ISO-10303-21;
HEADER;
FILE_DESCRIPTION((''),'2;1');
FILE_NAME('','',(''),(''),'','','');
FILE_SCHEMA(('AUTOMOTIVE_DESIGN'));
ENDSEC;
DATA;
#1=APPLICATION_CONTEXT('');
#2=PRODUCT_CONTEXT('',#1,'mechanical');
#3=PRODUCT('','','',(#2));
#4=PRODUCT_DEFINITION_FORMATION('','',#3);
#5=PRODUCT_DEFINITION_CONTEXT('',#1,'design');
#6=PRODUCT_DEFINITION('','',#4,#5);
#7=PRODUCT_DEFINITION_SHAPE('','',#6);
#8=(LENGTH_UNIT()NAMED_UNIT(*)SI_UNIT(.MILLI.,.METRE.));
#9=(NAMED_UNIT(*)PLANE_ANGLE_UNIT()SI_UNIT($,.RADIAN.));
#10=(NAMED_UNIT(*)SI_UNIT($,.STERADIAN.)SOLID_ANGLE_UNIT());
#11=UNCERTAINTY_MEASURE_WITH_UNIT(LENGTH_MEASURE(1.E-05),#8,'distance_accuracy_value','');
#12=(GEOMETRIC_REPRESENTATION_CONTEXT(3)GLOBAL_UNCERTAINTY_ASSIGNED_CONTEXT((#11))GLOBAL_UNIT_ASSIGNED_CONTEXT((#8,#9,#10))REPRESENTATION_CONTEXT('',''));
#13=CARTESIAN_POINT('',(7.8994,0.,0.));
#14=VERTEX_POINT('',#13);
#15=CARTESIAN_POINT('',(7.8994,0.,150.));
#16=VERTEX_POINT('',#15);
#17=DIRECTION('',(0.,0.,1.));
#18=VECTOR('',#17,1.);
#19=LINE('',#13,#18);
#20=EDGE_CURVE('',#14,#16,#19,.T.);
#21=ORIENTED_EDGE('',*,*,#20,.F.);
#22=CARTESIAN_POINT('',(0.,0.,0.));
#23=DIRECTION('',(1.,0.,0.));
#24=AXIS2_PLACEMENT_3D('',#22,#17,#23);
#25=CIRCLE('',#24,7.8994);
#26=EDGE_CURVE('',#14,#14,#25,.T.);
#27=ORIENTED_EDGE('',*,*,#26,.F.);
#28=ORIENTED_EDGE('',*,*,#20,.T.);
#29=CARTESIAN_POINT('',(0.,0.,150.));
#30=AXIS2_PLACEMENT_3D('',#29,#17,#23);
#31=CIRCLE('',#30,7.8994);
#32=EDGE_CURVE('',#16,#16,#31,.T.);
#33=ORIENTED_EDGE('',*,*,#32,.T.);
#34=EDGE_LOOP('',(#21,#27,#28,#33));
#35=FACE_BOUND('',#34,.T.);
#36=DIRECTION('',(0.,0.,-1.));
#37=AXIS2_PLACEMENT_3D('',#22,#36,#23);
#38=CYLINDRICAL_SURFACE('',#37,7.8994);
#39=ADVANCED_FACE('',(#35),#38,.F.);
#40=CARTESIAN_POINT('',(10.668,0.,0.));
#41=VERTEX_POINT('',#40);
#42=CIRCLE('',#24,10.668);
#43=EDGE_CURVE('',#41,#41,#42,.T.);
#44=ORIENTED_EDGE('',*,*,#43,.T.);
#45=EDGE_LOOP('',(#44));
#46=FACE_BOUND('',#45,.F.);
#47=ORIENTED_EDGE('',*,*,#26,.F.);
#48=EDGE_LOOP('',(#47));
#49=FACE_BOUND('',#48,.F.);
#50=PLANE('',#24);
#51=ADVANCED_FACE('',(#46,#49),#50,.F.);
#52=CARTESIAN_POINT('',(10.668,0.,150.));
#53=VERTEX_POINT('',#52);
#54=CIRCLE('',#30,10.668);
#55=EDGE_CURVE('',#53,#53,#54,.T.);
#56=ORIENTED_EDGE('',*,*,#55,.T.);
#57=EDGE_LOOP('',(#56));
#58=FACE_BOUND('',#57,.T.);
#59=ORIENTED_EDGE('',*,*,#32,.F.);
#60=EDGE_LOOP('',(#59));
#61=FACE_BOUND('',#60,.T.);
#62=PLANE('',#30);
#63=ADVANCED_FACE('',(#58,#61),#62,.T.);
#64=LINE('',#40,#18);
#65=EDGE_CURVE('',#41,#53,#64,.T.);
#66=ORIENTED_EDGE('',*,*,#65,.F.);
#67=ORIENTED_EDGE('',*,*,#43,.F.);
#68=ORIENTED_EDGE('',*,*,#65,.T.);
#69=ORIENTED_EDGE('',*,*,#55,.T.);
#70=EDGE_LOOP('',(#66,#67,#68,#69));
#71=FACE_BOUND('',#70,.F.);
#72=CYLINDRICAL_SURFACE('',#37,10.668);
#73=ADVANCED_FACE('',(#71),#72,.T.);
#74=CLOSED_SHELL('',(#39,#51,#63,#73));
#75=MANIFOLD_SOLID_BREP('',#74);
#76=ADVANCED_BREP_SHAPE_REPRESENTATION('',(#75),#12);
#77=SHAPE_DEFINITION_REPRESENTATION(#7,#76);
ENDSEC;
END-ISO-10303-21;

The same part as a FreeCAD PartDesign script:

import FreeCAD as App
import Part
import Sketcher
Q = App.Units.Quantity

doc = App.newDocument("Part")
body = doc.addObject("PartDesign::Body", "Body")

sketch1 = body.newObject("Sketcher::SketchObject", "Sketch")
sketch1.AttachmentSupport = (doc.getObject("XY_Plane"), [""])
sketch1.MapMode = "FlatFace"
sketch1.addGeometry(Part.Circle(App.Vector(0, 0, 0), App.Vector(0, 0, 1), 11), False)
sketch1.addGeometry(Part.Circle(App.Vector(0, 0, 0), App.Vector(0, 0, 1), 8), False)
sketch1.addConstraint(Sketcher.Constraint("Coincident", 0, 3, -1, 1))
sketch1.addConstraint(Sketcher.Constraint("Coincident", 1, 3, -1, 1))
sketch1.addConstraint(Sketcher.Constraint("Diameter", 0, Q("0.84 in")))
sketch1.addConstraint(Sketcher.Constraint("Diameter", 1, Q("0.622 in")))
pad1 = body.newObject("PartDesign::Pad", "Pad")
pad1.Profile = sketch1
pad1.Length = Q("5.9055118 in")

doc.recompute()
